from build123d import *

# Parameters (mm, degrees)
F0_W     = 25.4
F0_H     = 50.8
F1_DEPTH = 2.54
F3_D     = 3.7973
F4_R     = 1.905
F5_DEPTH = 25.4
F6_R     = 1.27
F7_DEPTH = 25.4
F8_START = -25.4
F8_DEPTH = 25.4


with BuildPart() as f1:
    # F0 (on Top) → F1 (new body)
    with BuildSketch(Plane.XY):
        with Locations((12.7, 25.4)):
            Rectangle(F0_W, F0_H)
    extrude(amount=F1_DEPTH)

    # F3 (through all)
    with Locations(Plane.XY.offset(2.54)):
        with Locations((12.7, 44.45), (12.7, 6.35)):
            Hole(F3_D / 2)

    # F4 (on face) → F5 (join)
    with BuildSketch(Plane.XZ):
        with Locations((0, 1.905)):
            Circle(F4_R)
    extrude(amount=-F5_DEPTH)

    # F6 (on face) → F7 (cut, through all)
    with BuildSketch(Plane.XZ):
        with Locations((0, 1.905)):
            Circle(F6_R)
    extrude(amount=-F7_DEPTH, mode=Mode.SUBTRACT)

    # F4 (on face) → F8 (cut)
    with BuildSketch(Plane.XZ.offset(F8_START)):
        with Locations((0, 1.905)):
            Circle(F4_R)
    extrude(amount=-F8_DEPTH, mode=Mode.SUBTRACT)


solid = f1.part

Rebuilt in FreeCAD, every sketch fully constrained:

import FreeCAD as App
import Part
import Sketcher

V = App.Vector
Q = App.Units.Quantity

doc = App.newDocument("Part")
body = doc.addObject("PartDesign::Body", "Body")

# Sketch on XY plane
sketch1 = body.newObject("Sketcher::SketchObject", "Sketch")
sketch1.AttachmentSupport = (doc.getObject("XY_Plane"), [""])
sketch1.MapMode = "FlatFace"
sketch1.addGeometry(Part.LineSegment(V(0, 51, 0), V(0, 0, 0)), False)
sketch1.addGeometry(Part.LineSegment(V(0, 0, 0), V(25, 0, 0)), False)
sketch1.addGeometry(Part.LineSegment(V(25, 0, 0), V(25, 51, 0)), False)
sketch1.addGeometry(Part.LineSegment(V(25, 51, 0), V(0, 51, 0)), False)
sketch1.addConstraint(Sketcher.Constraint("Coincident", 0, 2, 1, 1))
sketch1.addConstraint(Sketcher.Constraint("Coincident", 1, 2, 2, 1))
sketch1.addConstraint(Sketcher.Constraint("Coincident", 2, 2, 3, 1))
sketch1.addConstraint(Sketcher.Constraint("Coincident", 3, 2, 0, 1))
sketch1.addConstraint(Sketcher.Constraint("Vertical", 0))
sketch1.addConstraint(Sketcher.Constraint("Horizontal", 1))
sketch1.addConstraint(Sketcher.Constraint("Vertical", 2))
sketch1.addConstraint(Sketcher.Constraint("Horizontal", 3))
sketch1.addConstraint(Sketcher.Constraint("Coincident", 0, 2, -1, 1))
sketch1.addConstraint(Sketcher.Constraint("DistanceX", 1, 1, 1, 2, Q("1 in")))
sketch1.addConstraint(Sketcher.Constraint("DistanceY", 0, 2, 0, 1, Q("2 in")))
pad1 = body.newObject("PartDesign::Pad", "Pad")
pad1.Profile = sketch1
pad1.Length = Q("0.1 in")

# Sketch on XY plane
sketch2 = body.newObject("Sketcher::SketchObject", "Sketch001")
sketch2.AttachmentSupport = (doc.getObject("XY_Plane"), [""])
sketch2.MapMode = "FlatFace"
sketch2.AttachmentOffset = App.Placement(V(0, 0, 0.1 * 25.4), App.Rotation())
sketch2.addGeometry(Part.Circle(V(12.7, 44.5, 0), V(0, 0, 1), 1.9), False)
sketch2.addGeometry(Part.Circle(V(12.7, 6.3, 0), V(0, 0, 1), 1.9), False)
sketch2.addConstraint(Sketcher.Constraint("Equal", 0, 1))
sketch2.addConstraint(Sketcher.Constraint("Vertical", 0, 3, 1, 3))
sketch2.addConstraint(Sketcher.Constraint("Diameter", 0, Q("0.1495 in")))
sketch2.addConstraint(Sketcher.Constraint("DistanceX", -1, 1, 0, 3, Q("0.5 in")))
sketch2.addConstraint(Sketcher.Constraint("DistanceY", 1, 3, 0, 3, Q("1.5 in")))
sketch2.addConstraint(Sketcher.Constraint("DistanceY", -1, 1, 0, 3, Q("1.75 in")))
doc.recompute()
hole = body.newObject("PartDesign::Hole", "Hole")
hole.Profile = sketch2
hole.ThreadType = "None"
hole.Diameter = Q("0.1495 in")
hole.DepthType = "ThroughAll"

# Sketch on XZ plane
sketch3 = body.newObject("Sketcher::SketchObject", "Sketch002")
sketch3.AttachmentSupport = (doc.getObject("XZ_Plane"), [""])
sketch3.MapMode = "FlatFace"
sketch3.addGeometry(Part.Circle(V(0, 1.9, 0), V(0, 0, 1), 1.9), False)
sketch3.addConstraint(Sketcher.Constraint("PointOnObject", 0, 3, -2))
sketch3.addConstraint(Sketcher.Constraint("Diameter", 0, Q("0.15 in")))
sketch3.addConstraint(Sketcher.Constraint("DistanceY", -1, 1, 0, 3, Q("0.075 in")))
pad2 = body.newObject("PartDesign::Pad", "Pad001")
pad2.Profile = sketch3
pad2.Length = Q("1 in")
pad2.Reversed = True

# Sketch on XZ plane
sketch4 = body.newObject("Sketcher::SketchObject", "Sketch003")
sketch4.AttachmentSupport = (doc.getObject("XZ_Plane"), [""])
sketch4.MapMode = "FlatFace"
sketch4.addGeometry(Part.Circle(V(0, 1.9, 0), V(0, 0, 1), 1.3), False)
sketch4.addConstraint(Sketcher.Constraint("PointOnObject", 0, 3, -2))
sketch4.addConstraint(Sketcher.Constraint("Diameter", 0, Q("0.1 in")))
sketch4.addConstraint(Sketcher.Constraint("DistanceY", -1, 1, 0, 3, Q("0.075 in")))
pocket1 = body.newObject("PartDesign::Pocket", "Pocket")
pocket1.Profile = sketch4
pocket1.Length = Q("1 in")

# Sketch on XZ plane
sketch5 = body.newObject("Sketcher::SketchObject", "Sketch004")
sketch5.AttachmentSupport = (doc.getObject("XZ_Plane"), [""])
sketch5.MapMode = "FlatFace"
sketch5.AttachmentOffset = App.Placement(V(0, 0, -1 * 25.4), App.Rotation())
sketch5.addGeometry(Part.Circle(V(0, 1.9, 0), V(0, 0, 1), 1.9), False)
sketch5.addConstraint(Sketcher.Constraint("PointOnObject", 0, 3, -2))
sketch5.addConstraint(Sketcher.Constraint("Diameter", 0, Q("0.15 in")))
sketch5.addConstraint(Sketcher.Constraint("DistanceY", -1, 1, 0, 3, Q("0.075 in")))
pocket2 = body.newObject("PartDesign::Pocket", "Pocket001")
pocket2.Profile = sketch5
pocket2.Length = Q("1 in")

doc.recompute()
